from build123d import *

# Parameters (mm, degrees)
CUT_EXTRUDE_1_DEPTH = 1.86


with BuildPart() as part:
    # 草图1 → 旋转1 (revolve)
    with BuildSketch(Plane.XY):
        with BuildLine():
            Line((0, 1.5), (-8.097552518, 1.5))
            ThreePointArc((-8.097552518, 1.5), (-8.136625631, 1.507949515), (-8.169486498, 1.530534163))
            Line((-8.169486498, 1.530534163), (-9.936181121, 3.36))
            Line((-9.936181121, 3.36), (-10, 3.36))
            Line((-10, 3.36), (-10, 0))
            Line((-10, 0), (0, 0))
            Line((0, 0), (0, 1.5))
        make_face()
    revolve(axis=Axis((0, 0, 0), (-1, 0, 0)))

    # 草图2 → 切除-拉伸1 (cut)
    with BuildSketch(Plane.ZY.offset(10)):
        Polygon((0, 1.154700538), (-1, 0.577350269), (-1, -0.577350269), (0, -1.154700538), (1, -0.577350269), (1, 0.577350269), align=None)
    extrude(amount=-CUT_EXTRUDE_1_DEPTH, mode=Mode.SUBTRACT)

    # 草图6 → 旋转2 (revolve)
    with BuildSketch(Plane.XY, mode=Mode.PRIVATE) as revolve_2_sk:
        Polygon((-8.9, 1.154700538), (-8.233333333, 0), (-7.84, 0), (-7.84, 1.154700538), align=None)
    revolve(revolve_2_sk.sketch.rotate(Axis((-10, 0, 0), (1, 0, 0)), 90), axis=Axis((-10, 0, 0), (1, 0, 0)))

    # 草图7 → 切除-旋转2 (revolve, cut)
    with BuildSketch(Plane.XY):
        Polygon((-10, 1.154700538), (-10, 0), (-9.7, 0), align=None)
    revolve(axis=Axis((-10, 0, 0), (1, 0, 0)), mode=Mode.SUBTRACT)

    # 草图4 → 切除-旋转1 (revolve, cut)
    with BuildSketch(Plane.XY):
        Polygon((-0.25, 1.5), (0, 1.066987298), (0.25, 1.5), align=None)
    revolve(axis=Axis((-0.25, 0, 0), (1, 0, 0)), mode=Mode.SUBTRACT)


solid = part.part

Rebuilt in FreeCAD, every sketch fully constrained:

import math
import FreeCAD as App
import Part
import Sketcher

V = App.Vector
Q = App.Units.Quantity

doc = App.newDocument("Part")
params = doc.addObject("Spreadsheet::Sheet", "Params")
for row, (alias, value) in enumerate([
    ("sketch1_radius", "0.1 mm"),
    ("sketch1_width", "10 mm"),
    ("sketch1_height", "1.5 mm"),
    ("sketch1_height2", "3.36 mm"),
    ("revolution_angle", "360 deg"),
    ("pocket1_length", "1.86 mm"),
    ("sketch3_width", "1.06 mm"),
    ("revolution2_angle", "360 deg"),
    ("sketch4_width", "0.3 mm"),
    ("groove_angle", "360 deg"),
    ("sketch5_width", "0.5 mm"),
    ("groove2_angle", "360 deg"),
], start=1):
    params.set(f"A{row}", alias)
    params.set(f"B{row}", "=" + value)
    params.setAlias(f"B{row}", alias)

body = doc.addObject("PartDesign::Body", "Body")

# Sketch on XY plane
sketch1 = body.newObject("Sketcher::SketchObject", "Sketch")
sketch1.AttachmentSupport = (doc.getObject("XY_Plane"), [""])
sketch1.MapMode = "FlatFace"
sketch1.addGeometry(Part.LineSegment(V(0, 1.5, 0), V(-8.097553, 1.5, 0)), False)
sketch1.addGeometry(Part.ArcOfCircle(Part.Circle(V(-8.097553, 1.6, 0), V(0, 0, 1), 0.1), math.radians(-135.999999), math.radians(-90.000001)), False)
sketch1.addGeometry(Part.LineSegment(V(-8.169486, 1.530534, 0), V(-9.936181, 3.36, 0)), False)
sketch1.addGeometry(Part.LineSegment(V(-9.936181, 3.36, 0), V(-10, 3.36, 0)), False)
sketch1.addGeometry(Part.LineSegment(V(-10, 3.36, 0), V(-10, 0, 0)), False)
sketch1.addGeometry(Part.LineSegment(V(-10, 0, 0), V(0, 0, 0)), False)
sketch1.addGeometry(Part.LineSegment(V(0, 0, 0), V(0, 1.5, 0)), False)
sketch1.addConstraint(Sketcher.Constraint("Tangent", 0, 2, 1, 2))
sketch1.addConstraint(Sketcher.Constraint("Tangent", 1, 1, 2, 1))
sketch1.addConstraint(Sketcher.Constraint("Coincident", 2, 2, 3, 1))
sketch1.addConstraint(Sketcher.Constraint("Coincident", 3, 2, 4, 1))
sketch1.addConstraint(Sketcher.Constraint("Coincident", 4, 2, 5, 1))
sketch1.addConstraint(Sketcher.Constraint("Coincident", 5, 2, 6, 1))
sketch1.addConstraint(Sketcher.Constraint("Coincident", 6, 2, 0, 1))
sketch1.addConstraint(Sketcher.Constraint("Horizontal", 0))
sketch1.addConstraint(Sketcher.Constraint("Horizontal", 3))
sketch1.addConstraint(Sketcher.Constraint("Vertical", 4))
sketch1.addConstraint(Sketcher.Constraint("Horizontal", 5))
sketch1.addConstraint(Sketcher.Constraint("Vertical", 6))
sketch1.addConstraint(Sketcher.Constraint("Coincident", 5, 2, -1, 1))
sketch1.addConstraint(Sketcher.Constraint("Radius", 1, Q("0.1 mm")))
sketch1.addConstraint(Sketcher.Constraint("DistanceX", 5, 1, 5, 2, Q("10 mm")))
sketch1.addConstraint(Sketcher.Constraint("Angle", 2, Q("134 deg")))
sketch1.addConstraint(Sketcher.Constraint("DistanceY", 6, 1, 6, 2, Q("1.5 mm")))
sketch1.addConstraint(Sketcher.Constraint("DistanceY", 4, 2, 4, 1, Q("3.36 mm")))
sketch1.addConstraint(Sketcher.Constraint("DistanceX", 3, 2, 3, 1, Q("0.063819 mm")))
sketch1.setExpression("Constraints[13]", "Params.sketch1_radius")
sketch1.setExpression("Constraints[14]", "Params.sketch1_width")
sketch1.setExpression("Constraints[16]", "Params.sketch1_height")
sketch1.setExpression("Constraints[17]", "Params.sketch1_height2")
revolution = body.newObject("PartDesign::Revolution", "Revolution")
revolution.Profile = sketch1
revolution.ReferenceAxis = (sketch1, ["H_Axis"])
revolution.setExpression("Angle", "Params.revolution_angle")

# Sketch on YZ plane
sketch2 = body.newObject("Sketcher::SketchObject", "Sketch001")
sketch2.AttachmentSupport = (doc.getObject("YZ_Plane"), [""])
sketch2.MapMode = "FlatFace"
sketch2.AttachmentOffset = App.Placement(V(0, 0, -10), App.Rotation())
sketch2.addGeometry(Part.LineSegment(V(1.154701, 0, 0), V(0.57735, -1, 0)), False)
sketch2.addGeometry(Part.LineSegment(V(0.57735, -1, 0), V(-0.57735, -1, 0)), False)
sketch2.addGeometry(Part.LineSegment(V(-0.57735, -1, 0), V(-1.154701, 0, 0)), False)
sketch2.addGeometry(Part.LineSegment(V(-1.154701, 0, 0), V(-0.57735, 1, 0)), False)
sketch2.addGeometry(Part.LineSegment(V(-0.57735, 1, 0), V(0.57735, 1, 0)), False)
sketch2.addGeometry(Part.LineSegment(V(0.57735, 1, 0), V(1.154701, 0, 0)), False)
sketch2.addConstraint(Sketcher.Constraint("Coincident", 0, 2, 1, 1))
sketch2.addConstraint(Sketcher.Constraint("Coincident", 1, 2, 2, 1))
sketch2.addConstraint(Sketcher.Constraint("Coincident", 2, 2, 3, 1))
sketch2.addConstraint(Sketcher.Constraint("Coincident", 3, 2, 4, 1))
sketch2.addConstraint(Sketcher.Constraint("Coincident", 4, 2, 5, 1))
sketch2.addConstraint(Sketcher.Constraint("Coincident", 5, 2, 0, 1))
sketch2.addConstraint(Sketcher.Constraint("Horizontal", 1))
sketch2.addConstraint(Sketcher.Constraint("Horizontal", 4))
sketch2.addConstraint(Sketcher.Constraint("Symmetric", 0, 2, 3, 2, -1, 1))
sketch2.addConstraint(Sketcher.Constraint("Symmetric", 2, 2, 5, 2, -1, 1))
sketch2.addConstraint(Sketcher.Constraint("PointOnObject", 2, 2, -1))
sketch2.addConstraint(Sketcher.Constraint("Parallel", 2, 5))
sketch2.addConstraint(Sketcher.Constraint("Vertical", 1, 2, 3, 2))
sketch2.addConstraint(Sketcher.Constraint("Angle", 0, Q("-120 deg")))
sketch2.addConstraint(Sketcher.Constraint("DistanceY", 0, 2, -1, 1, Q("1 mm")))
sketch2.addConstraint(Sketcher.Constraint("DistanceX", 1, 2, 1, 1, Q("1.154701 mm")))
pocket1 = body.newObject("PartDesign::Pocket", "Pocket")
pocket1.Profile = sketch2
pocket1.setExpression("Length", "Params.pocket1_length")
pocket1.Reversed = True

# Sketch on XY plane
sketch3 = body.newObject("Sketcher::SketchObject", "Sketch002")
sketch3.AttachmentSupport = (doc.getObject("XY_Plane"), [""])
sketch3.MapMode = "FlatFace"
sketch3.addGeometry(Part.LineSegment(V(-8.9, 1.154701, 0), V(-8.233333, 0, 0)), False)
sketch3.addGeometry(Part.LineSegment(V(-8.233333, 0, 0), V(-7.84, 0, 0)), False)
sketch3.addGeometry(Part.LineSegment(V(-7.84, 0, 0), V(-7.84, 1.154701, 0)), False)
sketch3.addGeometry(Part.LineSegment(V(-7.84, 1.154701, 0), V(-8.9, 1.154701, 0)), False)
sketch3.addConstraint(Sketcher.Constraint("Coincident", 0, 2, 1, 1))
sketch3.addConstraint(Sketcher.Constraint("Coincident", 1, 2, 2, 1))
sketch3.addConstraint(Sketcher.Constraint("Coincident", 2, 2, 3, 1))
sketch3.addConstraint(Sketcher.Constraint("Coincident", 3, 2, 0, 1))
sketch3.addConstraint(Sketcher.Constraint("Horizontal", 1))
sketch3.addConstraint(Sketcher.Constraint("Vertical", 2))
sketch3.addConstraint(Sketcher.Constraint("Horizontal", 3))
sketch3.addConstraint(Sketcher.Constraint("PointOnObject", 0, 2, -1))
sketch3.addConstraint(Sketcher.Constraint("Angle", 0, Q("-60 deg")))
sketch3.addConstraint(Sketcher.Constraint("DistanceX", 3, 2, 3, 1, Q("1.06 mm")))
sketch3.addConstraint(Sketcher.Constraint("DistanceX", 3, 2, -1, 1, Q("8.9 mm")))
sketch3.addConstraint(Sketcher.Constraint("DistanceY", 2, 1, 2, 2, Q("1.154701 mm")))
sketch3.setExpression("Constraints[9]", "Params.sketch3_width")
revolution2 = body.newObject("PartDesign::Revolution", "Revolution001")
revolution2.Profile = sketch3
revolution2.ReferenceAxis = (sketch3, ["H_Axis"])
revolution2.setExpression("Angle", "Params.revolution2_angle")

# Sketch on XY plane
sketch4 = body.newObject("Sketcher::SketchObject", "Sketch003")
sketch4.AttachmentSupport = (doc.getObject("XY_Plane"), [""])
sketch4.MapMode = "FlatFace"
sketch4.addGeometry(Part.LineSegment(V(-10, 1.154701, 0), V(-10, 0, 0)), False)
sketch4.addGeometry(Part.LineSegment(V(-10, 0, 0), V(-9.7, 0, 0)), False)
sketch4.addGeometry(Part.LineSegment(V(-9.7, 0, 0), V(-10, 1.154701, 0)), False)
sketch4.addConstraint(Sketcher.Constraint("Coincident", 0, 2, 1, 1))
sketch4.addConstraint(Sketcher.Constraint("Coincident", 1, 2, 2, 1))
sketch4.addConstraint(Sketcher.Constraint("Coincident", 2, 2, 0, 1))
sketch4.addConstraint(Sketcher.Constraint("Vertical", 0))
sketch4.addConstraint(Sketcher.Constraint("Horizontal", 1))
sketch4.addConstraint(Sketcher.Constraint("PointOnObject", 0, 2, -1))
sketch4.addConstraint(Sketcher.Constraint("DistanceX", 1, 1, 1, 2, Q("0.3 mm")))
sketch4.addConstraint(Sketcher.Constraint("DistanceX", 0, 2, -1, 1, Q("10 mm")))
sketch4.addConstraint(Sketcher.Constraint("DistanceY", 0, 2, 0, 1, Q("1.154701 mm")))
sketch4.setExpression("Constraints[6]", "Params.sketch4_width")
groove = body.newObject("PartDesign::Groove", "Groove")
groove.Profile = sketch4
groove.ReferenceAxis = (sketch4, ["H_Axis"])
groove.setExpression("Angle", "Params.groove_angle")

# Sketch on XY plane
sketch5 = body.newObject("Sketcher::SketchObject", "Sketch004")
sketch5.AttachmentSupport = (doc.getObject("XY_Plane"), [""])
sketch5.MapMode = "FlatFace"
sketch5.addGeometry(Part.LineSegment(V(-0.25, 1.5, 0), V(0, 1.066987, 0)), False)
sketch5.addGeometry(Part.LineSegment(V(0, 1.066987, 0), V(0.25, 1.5, 0)), False)
sketch5.addGeometry(Part.LineSegment(V(0.25, 1.5, 0), V(-0.25, 1.5, 0)), False)
sketch5.addConstraint(Sketcher.Constraint("Coincident", 0, 2, 1, 1))
sketch5.addConstraint(Sketcher.Constraint("Coincident", 1, 2, 2, 1))
sketch5.addConstraint(Sketcher.Constraint("Coincident", 2, 2, 0, 1))
sketch5.addConstraint(Sketcher.Constraint("Horizontal", 2))
sketch5.addConstraint(Sketcher.Constraint("PointOnObject", 0, 2, -2))
sketch5.addConstraint(Sketcher.Constraint("Equal", 0, 1))
sketch5.addConstraint(Sketcher.Constraint("Angle", 0, Q("-60 deg")))
sketch5.addConstraint(Sketcher.Constraint("DistanceX", 2, 2, 2, 1, Q("0.5 mm")))
sketch5.addConstraint(Sketcher.Constraint("DistanceY", -1, 1, 1, 2, Q("1.5 mm")))
sketch5.setExpression("Constraints[7]", "Params.sketch5_width")
groove2 = body.newObject("PartDesign::Groove", "Groove001")
groove2.Profile = sketch5
groove2.ReferenceAxis = (sketch5, ["H_Axis"])
groove2.setExpression("Angle", "Params.groove2_angle")

doc.recompute()
